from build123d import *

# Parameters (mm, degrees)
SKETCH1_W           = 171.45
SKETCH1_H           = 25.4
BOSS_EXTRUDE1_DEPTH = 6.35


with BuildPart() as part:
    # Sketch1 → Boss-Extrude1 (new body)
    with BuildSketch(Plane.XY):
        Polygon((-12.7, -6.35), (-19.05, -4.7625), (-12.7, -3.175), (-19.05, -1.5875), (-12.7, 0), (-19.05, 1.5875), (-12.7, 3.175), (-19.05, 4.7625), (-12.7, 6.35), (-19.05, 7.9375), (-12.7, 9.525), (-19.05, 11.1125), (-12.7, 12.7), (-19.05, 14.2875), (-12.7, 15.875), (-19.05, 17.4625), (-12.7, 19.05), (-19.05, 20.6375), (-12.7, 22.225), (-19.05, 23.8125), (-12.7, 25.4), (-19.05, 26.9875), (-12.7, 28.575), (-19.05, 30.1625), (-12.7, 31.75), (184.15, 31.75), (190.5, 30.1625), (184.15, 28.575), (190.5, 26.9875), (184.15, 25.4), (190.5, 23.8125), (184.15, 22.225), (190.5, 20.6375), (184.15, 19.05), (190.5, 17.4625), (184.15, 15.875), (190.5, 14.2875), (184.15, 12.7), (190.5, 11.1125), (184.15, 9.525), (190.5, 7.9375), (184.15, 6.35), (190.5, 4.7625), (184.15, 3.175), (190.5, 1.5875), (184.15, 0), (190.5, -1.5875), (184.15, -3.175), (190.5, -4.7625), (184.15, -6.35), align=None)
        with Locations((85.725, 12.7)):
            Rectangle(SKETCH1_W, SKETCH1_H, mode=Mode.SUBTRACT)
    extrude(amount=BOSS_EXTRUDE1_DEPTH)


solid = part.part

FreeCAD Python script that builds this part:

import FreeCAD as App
import Part
import Sketcher
Q = App.Units.Quantity

doc = App.newDocument("Part")
body = doc.addObject("PartDesign::Body", "Body")

# Sketch on XY plane
sketch1 = doc.addObject("Sketcher::SketchObject", "Sketch")
body.addObject(sketch1)
sketch1.AttachmentSupport = (doc.XY_Plane, [""])
sketch1.MapMode = "FlatFace"
sketch1.addGeometry([
    Part.LineSegment(App.Vector(-19.05, -4.7625, 0), App.Vector(-12.7, -6.35, 0)),  # 0
    Part.LineSegment(App.Vector(-12.7, -6.35, 0), App.Vector(184.15, -6.35, 0)),  # 1
    Part.LineSegment(App.Vector(184.15, -6.35, 0), App.Vector(190.5, -4.7625, 0)),  # 2
    Part.LineSegment(App.Vector(190.5, -4.7625, 0), App.Vector(184.15, -3.175, 0)),  # 3
    Part.LineSegment(App.Vector(184.15, -3.175, 0), App.Vector(190.5, -1.5875, 0)),  # 4
    Part.LineSegment(App.Vector(190.5, -1.5875, 0), App.Vector(184.15, 0, 0)),  # 5
    Part.LineSegment(App.Vector(184.15, 0, 0), App.Vector(190.5, 1.5875, 0)),  # 6
    Part.LineSegment(App.Vector(190.5, 1.5875, 0), App.Vector(184.15, 3.175, 0)),  # 7
    Part.LineSegment(App.Vector(184.15, 3.175, 0), App.Vector(190.5, 4.7625, 0)),  # 8
    Part.LineSegment(App.Vector(190.5, 4.7625, 0), App.Vector(184.15, 6.35, 0)),  # 9
    Part.LineSegment(App.Vector(184.15, 6.35, 0), App.Vector(190.5, 7.9375, 0)),  # 10
    Part.LineSegment(App.Vector(190.5, 7.9375, 0), App.Vector(184.15, 9.525, 0)),  # 11
    Part.LineSegment(App.Vector(184.15, 9.525, 0), App.Vector(190.5, 11.1125, 0)),  # 12
    Part.LineSegment(App.Vector(190.5, 11.1125, 0), App.Vector(184.15, 12.7, 0)),  # 13
    Part.LineSegment(App.Vector(184.15, 12.7, 0), App.Vector(190.5, 14.2875, 0)),  # 14
    Part.LineSegment(App.Vector(190.5, 14.2875, 0), App.Vector(184.15, 15.875, 0)),  # 15
    Part.LineSegment(App.Vector(184.15, 15.875, 0), App.Vector(190.5, 17.4625, 0)),  # 16
    Part.LineSegment(App.Vector(190.5, 17.4625, 0), App.Vector(184.15, 19.05, 0)),  # 17
    Part.LineSegment(App.Vector(184.15, 19.05, 0), App.Vector(190.5, 20.6375, 0)),  # 18
    Part.LineSegment(App.Vector(190.5, 20.6375, 0), App.Vector(184.15, 22.225, 0)),  # 19
    Part.LineSegment(App.Vector(184.15, 22.225, 0), App.Vector(190.5, 23.8125, 0)),  # 20
    Part.LineSegment(App.Vector(190.5, 23.8125, 0), App.Vector(184.15, 25.4, 0)),  # 21
    Part.LineSegment(App.Vector(184.15, 25.4, 0), App.Vector(190.5, 26.9875, 0)),  # 22
    Part.LineSegment(App.Vector(190.5, 26.9875, 0), App.Vector(184.15, 28.575, 0)),  # 23
    Part.LineSegment(App.Vector(184.15, 28.575, 0), App.Vector(190.5, 30.1625, 0)),  # 24
    Part.LineSegment(App.Vector(190.5, 30.1625, 0), App.Vector(184.15, 31.75, 0)),  # 25
    Part.LineSegment(App.Vector(184.15, 31.75, 0), App.Vector(-12.7, 31.75, 0)),  # 26
    Part.LineSegment(App.Vector(-12.7, 31.75, 0), App.Vector(-19.05, 30.1625, 0)),  # 27
    Part.LineSegment(App.Vector(-19.05, 30.1625, 0), App.Vector(-12.7, 28.575, 0)),  # 28
    Part.LineSegment(App.Vector(-12.7, 28.575, 0), App.Vector(-19.05, 26.9875, 0)),  # 29
    Part.LineSegment(App.Vector(-19.05, 26.9875, 0), App.Vector(-12.7, 25.4, 0)),  # 30
    Part.LineSegment(App.Vector(-12.7, 25.4, 0), App.Vector(-19.05, 23.8125, 0)),  # 31
    Part.LineSegment(App.Vector(-19.05, 23.8125, 0), App.Vector(-12.7, 22.225, 0)),  # 32
    Part.LineSegment(App.Vector(-12.7, 22.225, 0), App.Vector(-19.05, 20.6375, 0)),  # 33
    Part.LineSegment(App.Vector(-19.05, 20.6375, 0), App.Vector(-12.7, 19.05, 0)),  # 34
    Part.LineSegment(App.Vector(-12.7, 19.05, 0), App.Vector(-19.05, 17.4625, 0)),  # 35
    Part.LineSegment(App.Vector(-19.05, 17.4625, 0), App.Vector(-12.7, 15.875, 0)),  # 36
    Part.LineSegment(App.Vector(-12.7, 15.875, 0), App.Vector(-19.05, 14.2875, 0)),  # 37
    Part.LineSegment(App.Vector(-19.05, 14.2875, 0), App.Vector(-12.7, 12.7, 0)),  # 38
    Part.LineSegment(App.Vector(-12.7, 12.7, 0), App.Vector(-19.05, 11.1125, 0)),  # 39
    Part.LineSegment(App.Vector(-19.05, 11.1125, 0), App.Vector(-12.7, 9.525, 0)),  # 40
    Part.LineSegment(App.Vector(-12.7, 9.525, 0), App.Vector(-19.05, 7.9375, 0)),  # 41
    Part.LineSegment(App.Vector(-19.05, 7.9375, 0), App.Vector(-12.7, 6.35, 0)),  # 42
    Part.LineSegment(App.Vector(-12.7, 6.35, 0), App.Vector(-19.05, 4.7625, 0)),  # 43
    Part.LineSegment(App.Vector(-19.05, 4.7625, 0), App.Vector(-12.7, 3.175, 0)),  # 44
    Part.LineSegment(App.Vector(-12.7, 3.175, 0), App.Vector(-19.05, 1.5875, 0)),  # 45
    Part.LineSegment(App.Vector(-19.05, 1.5875, 0), App.Vector(-12.7, 0, 0)),  # 46
    Part.LineSegment(App.Vector(-12.7, 0, 0), App.Vector(-19.05, -1.5875, 0)),  # 47
    Part.LineSegment(App.Vector(-19.05, -1.5875, 0), App.Vector(-12.7, -3.175, 0)),  # 48
    Part.LineSegment(App.Vector(-12.7, -3.175, 0), App.Vector(-19.05, -4.7625, 0)),  # 49
    Part.LineSegment(App.Vector(0, 0, 0), App.Vector(0, 25.4, 0)),  # 50
    Part.LineSegment(App.Vector(0, 25.4, 0), App.Vector(171.45, 25.4, 0)),  # 51
    Part.LineSegment(App.Vector(171.45, 25.4, 0), App.Vector(171.45, 0, 0)),  # 52
    Part.LineSegment(App.Vector(171.45, 0, 0), App.Vector(0, 0, 0)),  # 53
], False)
sketch1.addConstraint([
    Sketcher.Constraint("Coincident", 0, 2, 1, 1),
    Sketcher.Constraint("Coincident", 1, 2, 2, 1),
    Sketcher.Constraint("Coincident", 2, 2, 3, 1),
    Sketcher.Constraint("Coincident", 3, 2, 4, 1),
    Sketcher.Constraint("Coincident", 4, 2, 5, 1),
    Sketcher.Constraint("Coincident", 5, 2, 6, 1),
    Sketcher.Constraint("Coincident", 6, 2, 7, 1),
    Sketcher.Constraint("Coincident", 7, 2, 8, 1),
    Sketcher.Constraint("Coincident", 8, 2, 9, 1),
    Sketcher.Constraint("Coincident", 9, 2, 10, 1),
    Sketcher.Constraint("Coincident", 10, 2, 11, 1),
    Sketcher.Constraint("Coincident", 11, 2, 12, 1),
    Sketcher.Constraint("Coincident", 12, 2, 13, 1),
    Sketcher.Constraint("Coincident", 13, 2, 14, 1),
    Sketcher.Constraint("Coincident", 14, 2, 15, 1),
    Sketcher.Constraint("Coincident", 15, 2, 16, 1),
    Sketcher.Constraint("Coincident", 16, 2, 17, 1),
    Sketcher.Constraint("Coincident", 17, 2, 18, 1),
    Sketcher.Constraint("Coincident", 18, 2, 19, 1),
    Sketcher.Constraint("Coincident", 19, 2, 20, 1),
    Sketcher.Constraint("Coincident", 20, 2, 21, 1),
    Sketcher.Constraint("Coincident", 21, 2, 22, 1),
    Sketcher.Constraint("Coincident", 22, 2, 23, 1),
    Sketcher.Constraint("Coincident", 23, 2, 24, 1),
    Sketcher.Constraint("Coincident", 24, 2, 25, 1),
    Sketcher.Constraint("Coincident", 25, 2, 26, 1),
    Sketcher.Constraint("Coincident", 26, 2, 27, 1),
    Sketcher.Constraint("Coincident", 27, 2, 28, 1),
    Sketcher.Constraint("Coincident", 28, 2, 29, 1),
    Sketcher.Constraint("Coincident", 29, 2, 30, 1),
    Sketcher.Constraint("Coincident", 30, 2, 31, 1),
    Sketcher.Constraint("Coincident", 31, 2, 32, 1),
    Sketcher.Constraint("Coincident", 32, 2, 33, 1),
    Sketcher.Constraint("Coincident", 33, 2, 34, 1),
    Sketcher.Constraint("Coincident", 34, 2, 35, 1),
    Sketcher.Constraint("Coincident", 35, 2, 36, 1),
    Sketcher.Constraint("Coincident", 36, 2, 37, 1),
    Sketcher.Constraint("Coincident", 37, 2, 38, 1),
    Sketcher.Constraint("Coincident", 38, 2, 39, 1),
    Sketcher.Constraint("Coincident", 39, 2, 40, 1),
    Sketcher.Constraint("Coincident", 40, 2, 41, 1),
    Sketcher.Constraint("Coincident", 41, 2, 42, 1),
    Sketcher.Constraint("Coincident", 42, 2, 43, 1),
    Sketcher.Constraint("Coincident", 43, 2, 44, 1),
    Sketcher.Constraint("Coincident", 44, 2, 45, 1),
    Sketcher.Constraint("Coincident", 45, 2, 46, 1),
    Sketcher.Constraint("Coincident", 46, 2, 47, 1),
    Sketcher.Constraint("Coincident", 47, 2, 48, 1),
    Sketcher.Constraint("Coincident", 48, 2, 49, 1),
    Sketcher.Constraint("Coincident", 49, 2, 0, 1),
    Sketcher.Constraint("Coincident", 50, 2, 51, 1),
    Sketcher.Constraint("Coincident", 51, 2, 52, 1),
    Sketcher.Constraint("Coincident", 52, 2, 53, 1),
    Sketcher.Constraint("Coincident", 53, 2, 50, 1),
    Sketcher.Constraint("Horizontal", 1),
    Sketcher.Constraint("Horizontal", 26),
    Sketcher.Constraint("Vertical", 50),
    Sketcher.Constraint("Horizontal", 51),
    Sketcher.Constraint("Vertical", 52),
    Sketcher.Constraint("Horizontal", 53),
    Sketcher.Constraint("Coincident", 53, 2, -1, 1),
    Sketcher.Constraint("Symmetric", 4, 2, 6, 2, -1),
    Sketcher.Constraint("Symmetric", 3, 2, 7, 2, -1),
    Sketcher.Constraint("Symmetric", 2, 2, 8, 2, -1),
    Sketcher.Constraint("Symmetric", 1, 2, 9, 2, -1),
    Sketcher.Constraint("Symmetric", 0, 2, 42, 2, -1),
    Sketcher.Constraint("Symmetric", 45, 2, 47, 2, -1),
    Sketcher.Constraint("Symmetric", 44, 2, 48, 2, -1),
    Sketcher.Constraint("Symmetric", 43, 2, 49, 2, -1),
    Sketcher.Constraint("PointOnObject", 5, 2, -1),
    Sketcher.Constraint("PointOnObject", 46, 2, -1),
    Sketcher.Constraint("Parallel", 0, 3),
    Sketcher.Constraint("Parallel", 2, 4),
    Sketcher.Constraint("Parallel", 3, 5),
    Sketcher.Constraint("Parallel", 4, 6),
    Sketcher.Constraint("Parallel", 8, 10),
    Sketcher.Constraint("Parallel", 9, 11),
    Sketcher.Constraint("Parallel", 10, 12),
    Sketcher.Constraint("Parallel", 11, 13),
    Sketcher.Constraint("Parallel", 12, 14),
    Sketcher.Constraint("Parallel", 13, 15),
    Sketcher.Constraint("Parallel", 14, 16),
    Sketcher.Constraint("Parallel", 15, 17),
    Sketcher.Constraint("Parallel", 16, 18),
    Sketcher.Constraint("Parallel", 17, 19),
    Sketcher.Constraint("Parallel", 18, 20),
    Sketcher.Constraint("Parallel", 19, 21),
    Sketcher.Constraint("Parallel", 20, 22),
    Sketcher.Constraint("Parallel", 21, 23),
    Sketcher.Constraint("Parallel", 22, 24),
    Sketcher.Constraint("Parallel", 23, 25),
    Sketcher.Constraint("Parallel", 24, 27),
    Sketcher.Constraint("Parallel", 25, 28),
    Sketcher.Constraint("Parallel", 27, 29),
    Sketcher.Constraint("Parallel", 28, 30),
    Sketcher.Constraint("Parallel", 29, 31),
    Sketcher.Constraint("Parallel", 30, 32),
    Sketcher.Constraint("Parallel", 31, 33),
    Sketcher.Constraint("Parallel", 32, 34),
    Sketcher.Constraint("Parallel", 33, 35),
    Sketcher.Constraint("Parallel", 34, 36),
    Sketcher.Constraint("Parallel", 35, 37),
    Sketcher.Constraint("Parallel", 36, 38),
    Sketcher.Constraint("Parallel", 37, 39),
    Sketcher.Constraint("Parallel", 38, 40),
    Sketcher.Constraint("Parallel", 39, 41),
    Sketcher.Constraint("Parallel", 40, 42),
    Sketcher.Constraint("Parallel", 42, 44),
    Sketcher.Constraint("Parallel", 43, 45),
    Sketcher.Constraint("Parallel", 44, 46),
    Sketcher.Constraint("Horizontal", 24, 2, 27, 2),
    Sketcher.Constraint("Horizontal", 23, 2, 28, 2),
    Sketcher.Constraint("Horizontal", 22, 2, 29, 2),
    Sketcher.Constraint("Horizontal", 21, 2, 30, 2),
    Sketcher.Constraint("Horizontal", 20, 2, 31, 2),
    Sketcher.Constraint("Horizontal", 19, 2, 32, 2),
    Sketcher.Constraint("Horizontal", 18, 2, 33, 2),
    Sketcher.Constraint("Horizontal", 17, 2, 34, 2),
    Sketcher.Constraint("Horizontal", 16, 2, 35, 2),
    Sketcher.Constraint("Horizontal", 15, 2, 36, 2),
    Sketcher.Constraint("Horizontal", 14, 2, 37, 2),
    Sketcher.Constraint("Horizontal", 13, 2, 38, 2),
    Sketcher.Constraint("Horizontal", 12, 2, 39, 2),
    Sketcher.Constraint("Horizontal", 11, 2, 40, 2),
    Sketcher.Constraint("Horizontal", 10, 2, 41, 2),
    Sketcher.Constraint("Horizontal", 8, 2, 43, 2),
    Sketcher.Constraint("Horizontal", 7, 2, 44, 2),
    Sketcher.Constraint("Horizontal", 6, 2, 45, 2),
    Sketcher.Constraint("Horizontal", 30, 2, 50, 2),
    Sketcher.Constraint("Vertical", 1, 2, 3, 2),
    Sketcher.Constraint("Vertical", 2, 2, 4, 2),
    Sketcher.Constraint("Vertical", 3, 2, 5, 2),
    Sketcher.Constraint("Vertical", 8, 2, 10, 2),
    Sketcher.Constraint("Vertical", 9, 2, 11, 2),
    Sketcher.Constraint("Vertical", 10, 2, 12, 2),
    Sketcher.Constraint("Vertical", 11, 2, 13, 2),
    Sketcher.Constraint("Vertical", 12, 2, 14, 2),
    Sketcher.Constraint("Vertical", 13, 2, 15, 2),
    Sketcher.Constraint("Vertical", 14, 2, 16, 2),
    Sketcher.Constraint("Vertical", 15, 2, 17, 2),
    Sketcher.Constraint("Vertical", 16, 2, 18, 2),
    Sketcher.Constraint("Vertical", 17, 2, 19, 2),
    Sketcher.Constraint("Vertical", 18, 2, 20, 2),
    Sketcher.Constraint("Vertical", 19, 2, 21, 2),
    Sketcher.Constraint("Vertical", 20, 2, 22, 2),
    Sketcher.Constraint("Vertical", 21, 2, 23, 2),
    Sketcher.Constraint("Vertical", 22, 2, 24, 2),
    Sketcher.Constraint("Vertical", 23, 2, 25, 2),
    Sketcher.Constraint("DistanceY", 50, 1, 50, 2, Q("1 in")),
    Sketcher.Constraint("DistanceX", 0, 2, 2, 2, Q("8 in")),
    Sketcher.Constraint("DistanceX", 1, 1, 1, 2, Q("7.75 in")),
    Sketcher.Constraint("DistanceX", 51, 1, 51, 2, Q("6.75 in")),
    Sketcher.Constraint("DistanceX", 0, 2, -1, 1, Q("0.5 in")),
])
pad1 = doc.addObject("PartDesign::Pad", "Pad")
body.addObject(pad1)
pad1.Profile = sketch1
pad1.Length = Q("0.25 in")

doc.recompute()
